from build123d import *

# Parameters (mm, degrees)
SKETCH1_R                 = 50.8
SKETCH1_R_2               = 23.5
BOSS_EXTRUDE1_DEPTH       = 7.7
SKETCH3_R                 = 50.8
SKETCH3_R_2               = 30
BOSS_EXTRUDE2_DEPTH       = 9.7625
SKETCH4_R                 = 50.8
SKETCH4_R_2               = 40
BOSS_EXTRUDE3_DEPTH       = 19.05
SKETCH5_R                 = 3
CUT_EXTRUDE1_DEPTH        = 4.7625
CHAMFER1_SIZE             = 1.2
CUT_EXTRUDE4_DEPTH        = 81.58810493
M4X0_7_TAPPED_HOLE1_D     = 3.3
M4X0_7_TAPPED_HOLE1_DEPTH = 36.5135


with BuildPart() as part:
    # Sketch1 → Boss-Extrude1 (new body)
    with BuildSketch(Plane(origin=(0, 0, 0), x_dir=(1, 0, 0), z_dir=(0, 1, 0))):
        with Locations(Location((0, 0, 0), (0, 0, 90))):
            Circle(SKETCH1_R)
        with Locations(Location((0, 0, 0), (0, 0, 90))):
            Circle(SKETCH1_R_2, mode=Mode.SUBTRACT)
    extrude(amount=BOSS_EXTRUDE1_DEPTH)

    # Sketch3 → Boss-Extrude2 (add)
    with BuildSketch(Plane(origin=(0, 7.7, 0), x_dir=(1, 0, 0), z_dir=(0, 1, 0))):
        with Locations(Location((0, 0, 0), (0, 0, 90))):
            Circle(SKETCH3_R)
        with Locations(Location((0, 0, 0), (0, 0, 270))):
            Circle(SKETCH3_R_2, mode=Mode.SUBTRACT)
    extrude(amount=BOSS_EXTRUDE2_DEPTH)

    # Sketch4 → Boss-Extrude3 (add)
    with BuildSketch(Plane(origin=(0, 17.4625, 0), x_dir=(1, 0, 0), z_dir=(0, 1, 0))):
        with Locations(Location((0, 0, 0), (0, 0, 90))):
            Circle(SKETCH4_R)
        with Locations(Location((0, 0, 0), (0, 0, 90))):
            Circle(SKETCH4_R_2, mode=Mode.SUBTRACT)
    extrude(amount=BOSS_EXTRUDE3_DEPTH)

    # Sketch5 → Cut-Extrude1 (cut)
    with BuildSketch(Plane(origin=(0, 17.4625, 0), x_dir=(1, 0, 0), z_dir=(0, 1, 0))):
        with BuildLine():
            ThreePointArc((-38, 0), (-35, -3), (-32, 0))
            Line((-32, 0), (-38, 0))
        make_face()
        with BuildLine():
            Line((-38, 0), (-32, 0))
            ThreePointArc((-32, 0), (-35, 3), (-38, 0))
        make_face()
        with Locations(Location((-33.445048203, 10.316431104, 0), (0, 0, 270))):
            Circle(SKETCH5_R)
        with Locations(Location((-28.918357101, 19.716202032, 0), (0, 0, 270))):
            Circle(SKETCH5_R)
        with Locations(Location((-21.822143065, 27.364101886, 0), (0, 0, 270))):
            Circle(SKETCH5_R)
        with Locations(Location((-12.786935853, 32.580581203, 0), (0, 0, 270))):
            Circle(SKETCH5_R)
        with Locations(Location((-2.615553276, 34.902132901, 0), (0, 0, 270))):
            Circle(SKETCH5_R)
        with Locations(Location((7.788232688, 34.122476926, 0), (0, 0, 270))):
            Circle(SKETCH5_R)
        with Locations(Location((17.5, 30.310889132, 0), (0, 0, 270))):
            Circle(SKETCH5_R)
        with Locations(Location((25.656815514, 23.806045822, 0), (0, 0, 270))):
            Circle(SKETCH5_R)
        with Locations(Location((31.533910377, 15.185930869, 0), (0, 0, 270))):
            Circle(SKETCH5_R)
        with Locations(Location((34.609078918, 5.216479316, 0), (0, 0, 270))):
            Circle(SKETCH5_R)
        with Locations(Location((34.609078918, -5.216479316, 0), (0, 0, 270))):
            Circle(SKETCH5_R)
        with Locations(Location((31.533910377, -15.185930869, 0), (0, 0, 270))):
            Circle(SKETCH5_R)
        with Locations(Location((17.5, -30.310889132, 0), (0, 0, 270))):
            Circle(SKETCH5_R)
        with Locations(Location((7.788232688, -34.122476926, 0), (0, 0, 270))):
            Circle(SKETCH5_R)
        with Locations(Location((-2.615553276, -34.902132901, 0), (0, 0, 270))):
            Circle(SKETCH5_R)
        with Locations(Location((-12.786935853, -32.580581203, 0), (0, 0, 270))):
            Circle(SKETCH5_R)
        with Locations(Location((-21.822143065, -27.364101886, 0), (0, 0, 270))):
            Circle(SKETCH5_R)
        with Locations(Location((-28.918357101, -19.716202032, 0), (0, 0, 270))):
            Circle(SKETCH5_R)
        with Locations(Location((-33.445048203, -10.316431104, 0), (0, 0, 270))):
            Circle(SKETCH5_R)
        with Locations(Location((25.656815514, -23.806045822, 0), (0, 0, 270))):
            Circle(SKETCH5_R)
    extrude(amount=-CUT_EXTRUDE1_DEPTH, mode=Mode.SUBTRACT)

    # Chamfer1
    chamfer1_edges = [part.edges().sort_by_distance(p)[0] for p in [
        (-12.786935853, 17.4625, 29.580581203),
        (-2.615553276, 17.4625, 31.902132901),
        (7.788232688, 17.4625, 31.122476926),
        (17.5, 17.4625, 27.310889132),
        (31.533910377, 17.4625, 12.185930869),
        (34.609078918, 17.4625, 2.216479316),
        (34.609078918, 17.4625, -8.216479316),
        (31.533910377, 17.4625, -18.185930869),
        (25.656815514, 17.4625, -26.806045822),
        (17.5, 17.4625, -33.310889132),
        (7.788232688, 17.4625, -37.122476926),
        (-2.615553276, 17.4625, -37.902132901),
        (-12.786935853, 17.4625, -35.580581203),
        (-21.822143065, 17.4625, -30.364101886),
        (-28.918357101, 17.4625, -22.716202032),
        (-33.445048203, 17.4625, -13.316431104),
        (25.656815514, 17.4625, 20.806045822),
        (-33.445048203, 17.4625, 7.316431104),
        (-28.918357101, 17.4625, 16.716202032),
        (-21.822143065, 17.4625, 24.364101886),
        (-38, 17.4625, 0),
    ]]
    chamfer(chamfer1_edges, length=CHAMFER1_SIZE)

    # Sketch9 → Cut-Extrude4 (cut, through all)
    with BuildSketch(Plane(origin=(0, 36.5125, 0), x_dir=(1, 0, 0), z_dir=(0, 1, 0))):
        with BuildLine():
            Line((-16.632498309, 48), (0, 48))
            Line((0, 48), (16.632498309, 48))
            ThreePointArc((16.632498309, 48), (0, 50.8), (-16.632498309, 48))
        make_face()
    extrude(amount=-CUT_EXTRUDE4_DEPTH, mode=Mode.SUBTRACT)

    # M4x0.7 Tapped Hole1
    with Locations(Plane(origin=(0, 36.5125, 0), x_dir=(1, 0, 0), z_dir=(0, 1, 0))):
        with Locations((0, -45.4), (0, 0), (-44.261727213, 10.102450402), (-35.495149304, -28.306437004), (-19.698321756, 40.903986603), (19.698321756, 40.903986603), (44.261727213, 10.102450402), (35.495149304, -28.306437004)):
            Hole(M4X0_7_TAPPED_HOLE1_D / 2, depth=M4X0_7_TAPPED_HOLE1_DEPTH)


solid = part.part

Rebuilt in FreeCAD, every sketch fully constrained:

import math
import FreeCAD as App
import Part
import Sketcher
from FreeCAD import Vector


def edges_at(feature, points):
    """Names of the edges that pass closest to the given points."""
    edges = feature.Shape.Edges
    near = lambda p: min(range(len(edges)), key=lambda i: edges[i].distToShape(Part.Vertex(*p))[0])
    return sorted({f"Edge{near(p) + 1}" for p in points})

doc = App.newDocument("Part")
body = doc.addObject("PartDesign::Body", "Body")

# Sketch on XZ plane
sketch1 = doc.addObject("Sketcher::SketchObject", "Sketch")
body.addObject(sketch1)
sketch1.AttachmentSupport = (doc.XZ_Plane, [""])
sketch1.MapMode = "FlatFace"
sketch1.addGeometry(Part.Circle(Vector(0, 0, 0), Vector(0, 0, 1), 51), False)
sketch1.addGeometry(Part.Circle(Vector(0, 0, 0), Vector(0, 0, 1), 24), False)
sketch1.addConstraint(Sketcher.Constraint("Coincident", 0, 3, -1, 1))
sketch1.addConstraint(Sketcher.Constraint("Coincident", 1, 3, -1, 1))
sketch1.addConstraint(Sketcher.Constraint("Diameter", 1, 47.0))
sketch1.addConstraint(Sketcher.Constraint("Diameter", 0, 101.6))
pad1 = doc.addObject("PartDesign::Pad", "Pad")
body.addObject(pad1)
pad1.Profile = sketch1
pad1.Length = 7.7
pad1.Reversed = True

# Sketch on XZ plane
sketch2 = doc.addObject("Sketcher::SketchObject", "Sketch001")
body.addObject(sketch2)
sketch2.AttachmentSupport = (doc.XZ_Plane, [""])
sketch2.MapMode = "FlatFace"
sketch2.AttachmentOffset = App.Placement(Vector(0, 0, -7.7), App.Rotation())
sketch2.addGeometry(Part.Circle(Vector(0, 0, 0), Vector(0, 0, 1), 51), False)
sketch2.addGeometry(Part.Circle(Vector(0, 0, 0), Vector(0, 0, 1), 30), False)
sketch2.addConstraint(Sketcher.Constraint("Coincident", 0, 3, -1, 1))
sketch2.addConstraint(Sketcher.Constraint("Coincident", 1, 3, -1, 1))
sketch2.addConstraint(Sketcher.Constraint("Diameter", 1, 60.0))
sketch2.addConstraint(Sketcher.Constraint("Diameter", 0, 101.6))
pad2 = doc.addObject("PartDesign::Pad", "Pad001")
body.addObject(pad2)
pad2.Profile = sketch2
pad2.Length = 9.7625
pad2.Reversed = True

# Sketch on XZ plane
sketch3 = doc.addObject("Sketcher::SketchObject", "Sketch002")
body.addObject(sketch3)
sketch3.AttachmentSupport = (doc.XZ_Plane, [""])
sketch3.MapMode = "FlatFace"
sketch3.AttachmentOffset = App.Placement(Vector(0, 0, -17.4625), App.Rotation())
sketch3.addGeometry(Part.Circle(Vector(0, 0, 0), Vector(0, 0, 1), 51), False)
sketch3.addGeometry(Part.Circle(Vector(0, 0, 0), Vector(0, 0, 1), 40), False)
sketch3.addConstraint(Sketcher.Constraint("Coincident", 0, 3, -1, 1))
sketch3.addConstraint(Sketcher.Constraint("Coincident", 1, 3, -1, 1))
sketch3.addConstraint(Sketcher.Constraint("Diameter", 1, 80.0))
sketch3.addConstraint(Sketcher.Constraint("Diameter", 0, 101.6))
pad3 = doc.addObject("PartDesign::Pad", "Pad002")
body.addObject(pad3)
pad3.Profile = sketch3
pad3.Length = 19.05
pad3.Reversed = True

# Sketch on XZ plane
sketch4 = doc.addObject("Sketcher::SketchObject", "Sketch003")
body.addObject(sketch4)
sketch4.AttachmentSupport = (doc.XZ_Plane, [""])
sketch4.MapMode = "FlatFace"
sketch4.AttachmentOffset = App.Placement(Vector(0, 0, -17.4625), App.Rotation())
sketch4.addGeometry(Part.Circle(Vector(-35, 0, 0), Vector(0, 0, 1), 3), False)
sketch4.addGeometry(Part.Circle(Vector(-33.4, -10.3, 0), Vector(0, 0, 1), 3), False)
sketch4.addGeometry(Part.Circle(Vector(-28.9, -19.7, 0), Vector(0, 0, 1), 3), False)
sketch4.addGeometry(Part.Circle(Vector(-21.8, -27.4, 0), Vector(0, 0, 1), 3), False)
sketch4.addGeometry(Part.Circle(Vector(-12.8, -32.6, 0), Vector(0, 0, 1), 3), False)
sketch4.addGeometry(Part.Circle(Vector(-2.6, -34.9, 0), Vector(0, 0, 1), 3), False)
sketch4.addGeometry(Part.Circle(Vector(7.8, -34.1, 0), Vector(0, 0, 1), 3), False)
sketch4.addGeometry(Part.Circle(Vector(17.5, -30.3, 0), Vector(0, 0, 1), 3), False)
sketch4.addGeometry(Part.Circle(Vector(25.7, -23.8, 0), Vector(0, 0, 1), 3), False)
sketch4.addGeometry(Part.Circle(Vector(31.5, -15.2, 0), Vector(0, 0, 1), 3), False)
sketch4.addGeometry(Part.Circle(Vector(34.6, -5.2, 0), Vector(0, 0, 1), 3), False)
sketch4.addGeometry(Part.Circle(Vector(34.6, 5.2, 0), Vector(0, 0, 1), 3), False)
sketch4.addGeometry(Part.Circle(Vector(31.5, 15.2, 0), Vector(0, 0, 1), 3), False)
sketch4.addGeometry(Part.Circle(Vector(17.5, 30.3, 0), Vector(0, 0, 1), 3), False)
sketch4.addGeometry(Part.Circle(Vector(7.8, 34.1, 0), Vector(0, 0, 1), 3), False)
sketch4.addGeometry(Part.Circle(Vector(-2.6, 34.9, 0), Vector(0, 0, 1), 3), False)
sketch4.addGeometry(Part.Circle(Vector(-12.8, 32.6, 0), Vector(0, 0, 1), 3), False)
sketch4.addGeometry(Part.Circle(Vector(-21.8, 27.4, 0), Vector(0, 0, 1), 3), False)
sketch4.addGeometry(Part.Circle(Vector(-28.9, 19.7, 0), Vector(0, 0, 1), 3), False)
sketch4.addGeometry(Part.Circle(Vector(-33.4, 10.3, 0), Vector(0, 0, 1), 3), False)
sketch4.addGeometry(Part.Circle(Vector(25.7, 23.8, 0), Vector(0, 0, 1), 3), False)
sketch4.addConstraint(Sketcher.Constraint("Equal", 0, 1))
sketch4.addConstraint(Sketcher.Constraint("Equal", 1, 2))
sketch4.addConstraint(Sketcher.Constraint("Equal", 2, 3))
sketch4.addConstraint(Sketcher.Constraint("Equal", 3, 4))
sketch4.addConstraint(Sketcher.Constraint("Equal", 4, 5))
sketch4.addConstraint(Sketcher.Constraint("Equal", 5, 6))
sketch4.addConstraint(Sketcher.Constraint("Equal", 6, 7))
sketch4.addConstraint(Sketcher.Constraint("Equal", 7, 8))
sketch4.addConstraint(Sketcher.Constraint("Equal", 8, 9))
sketch4.addConstraint(Sketcher.Constraint("Equal", 9, 10))
sketch4.addConstraint(Sketcher.Constraint("Equal", 10, 11))
sketch4.addConstraint(Sketcher.Constraint("Equal", 11, 12))
sketch4.addConstraint(Sketcher.Constraint("Equal", 12, 13))
sketch4.addConstraint(Sketcher.Constraint("Equal", 13, 14))
sketch4.addConstraint(Sketcher.Constraint("Equal", 14, 15))
sketch4.addConstraint(Sketcher.Constraint("Equal", 15, 16))
sketch4.addConstraint(Sketcher.Constraint("Equal", 16, 17))
sketch4.addConstraint(Sketcher.Constraint("Equal", 17, 18))
sketch4.addConstraint(Sketcher.Constraint("Equal", 18, 19))
sketch4.addConstraint(Sketcher.Constraint("Equal", 19, 20))
sketch4.addConstraint(Sketcher.Constraint("Symmetric", 10, 3, 11, 3, -1))
sketch4.addConstraint(Sketcher.Constraint("Symmetric", 9, 3, 12, 3, -1))
sketch4.addConstraint(Sketcher.Constraint("Symmetric", 7, 3, 13, 3, -1))
sketch4.addConstraint(Sketcher.Constraint("Symmetric", 6, 3, 14, 3, -1))
sketch4.addConstraint(Sketcher.Constraint("Symmetric", 5, 3, 15, 3, -1))
sketch4.addConstraint(Sketcher.Constraint("Symmetric", 4, 3, 16, 3, -1))
sketch4.addConstraint(Sketcher.Constraint("Symmetric", 3, 3, 17, 3, -1))
sketch4.addConstraint(Sketcher.Constraint("Symmetric", 2, 3, 18, 3, -1))
sketch4.addConstraint(Sketcher.Constraint("Symmetric", 1, 3, 19, 3, -1))
sketch4.addConstraint(Sketcher.Constraint("Symmetric", 8, 3, 20, 3, -1))
sketch4.addConstraint(Sketcher.Constraint("PointOnObject", 0, 3, -1))
sketch4.addConstraint(Sketcher.Constraint("Diameter", 0, 6.0))
sketch4.addConstraint(Sketcher.Constraint("DistanceX", 0, 3, -1, 1, 35.0))
sketch4.addConstraint(Sketcher.Constraint("DistanceX", -1, 1, 7, 3, 17.5))
sketch4.addConstraint(Sketcher.Constraint("DistanceY", 3, 3, -1, 1, 27.364102))
sketch4.addConstraint(Sketcher.Constraint("DistanceY", 3, 3, 2, 3, 7.6479))
sketch4.addConstraint(Sketcher.Constraint("DistanceY", 5, 3, 1, 3, 24.585702))
sketch4.addConstraint(Sketcher.Constraint("DistanceX", 1, 3, -1, 1, 33.445048))
sketch4.addConstraint(Sketcher.Constraint("DistanceY", 1, 3, -1, 1, 10.316431))
sketch4.addConstraint(Sketcher.Constraint("DistanceY", 4, 3, -1, 1, 32.580581))
sketch4.addConstraint(Sketcher.Constraint("DistanceY", 7, 3, -1, 1, 30.310889))
sketch4.addConstraint(Sketcher.Constraint("DistanceX", -1, 1, 9, 3, 31.53391))
sketch4.addConstraint(Sketcher.Constraint("DistanceY", 9, 3, -1, 1, 15.185931))
sketch4.addConstraint(Sketcher.Constraint("DistanceX", -1, 1, 10, 3, 34.609079))
sketch4.addConstraint(Sketcher.Constraint("DistanceY", 10, 3, -1, 1, 5.216479))
sketch4.addConstraint(Sketcher.Constraint("DistanceX", 1, 3, 2, 3, 4.526691))
sketch4.addConstraint(Sketcher.Constraint("DistanceX", 2, 3, 4, 3, 16.131421))
sketch4.addConstraint(Sketcher.Constraint("DistanceX", 3, 3, 5, 3, 19.20659))
sketch4.addConstraint(Sketcher.Constraint("DistanceX", 4, 3, 6, 3, 20.575169))
sketch4.addConstraint(Sketcher.Constraint("DistanceY", 6, 3, 8, 3, 10.316431))
sketch4.addConstraint(Sketcher.Constraint("DistanceX", 5, 3, 8, 3, 28.272369))
sketch4.addConstraint(Sketcher.Constraint("DistanceX", 4, 3, 8, 3, 38.443751))
sketch4.addConstraint(Sketcher.Constraint("DistanceY", 6, 3, -1, 1, 34.122477))
pocket1 = doc.addObject("PartDesign::Pocket", "Pocket")
body.addObject(pocket1)
pocket1.Profile = sketch4
pocket1.Length = 4.7625
pocket1.Reversed = True
doc.recompute()

chamfer = doc.addObject("PartDesign::Chamfer", "Chamfer")
body.addObject(chamfer)
chamfer.Base = (pocket1, edges_at(pocket1, [
    (-12.787, 17.462, 29.581),
    (-2.616, 17.462, 31.902),
    (7.788, 17.462, 31.122),
    (17.5, 17.462, 27.311),
    (31.534, 17.462, 12.186),
    (34.609, 17.462, 2.216),
    (34.609, 17.462, -8.216),
    (31.534, 17.462, -18.186),
    (25.657, 17.462, -26.806),
    (17.5, 17.462, -33.311),
    (7.788, 17.462, -37.122),
    (-2.616, 17.462, -37.902),
    (-12.787, 17.462, -35.581),
    (-21.822, 17.462, -30.364),
    (-28.918, 17.462, -22.716),
    (-33.445, 17.462, -13.316),
    (25.657, 17.462, 20.806),
    (-33.445, 17.462, 7.316),
    (-28.918, 17.462, 16.716),
    (-21.822, 17.462, 24.364),
    (-38, 17.462, 0),
]))
chamfer.Size = 1.2

# Sketch on XZ plane
sketch5 = doc.addObject("Sketcher::SketchObject", "Sketch004")
body.addObject(sketch5)
sketch5.AttachmentSupport = (doc.XZ_Plane, [""])
sketch5.MapMode = "FlatFace"
sketch5.AttachmentOffset = App.Placement(Vector(0, 0, -36.5125), App.Rotation())
sketch5.addGeometry(Part.LineSegment(Vector(-17, -48, 0), Vector(17, -48, 0)), False)
sketch5.addGeometry(Part.ArcOfCircle(Part.Circle(Vector(0, 0, 0), Vector(0, 0, 1), 51), math.radians(-109), math.radians(-71)), False)
sketch5.addConstraint(Sketcher.Constraint("Coincident", 0, 1, 1, 1))
sketch5.addConstraint(Sketcher.Constraint("Coincident", 1, 2, 0, 2))
sketch5.addConstraint(Sketcher.Constraint("Horizontal", 0))
sketch5.addConstraint(Sketcher.Constraint("Coincident", 1, 3, -1, 1))
sketch5.addConstraint(Sketcher.Constraint("Radius", 1, 50.8))
sketch5.addConstraint(Sketcher.Constraint("DistanceY", 0, 1, -1, 1, 48.0))
pocket2 = doc.addObject("PartDesign::Pocket", "Pocket001")
body.addObject(pocket2)
pocket2.Profile = sketch5
pocket2.Type = "ThroughAll"
pocket2.Reversed = True

# Sketch on XZ plane
sketch6 = doc.addObject("Sketcher::SketchObject", "Sketch005")
body.addObject(sketch6)
sketch6.AttachmentSupport = (doc.XZ_Plane, [""])
sketch6.MapMode = "FlatFace"
sketch6.AttachmentOffset = App.Placement(Vector(0, 0, -36.5125), App.Rotation())
sketch6.addGeometry(Part.Circle(Vector(0, 45.4, 0), Vector(0, 0, 1), 1.6), False)
sketch6.addGeometry(Part.Circle(Vector(0, 0, 0), Vector(0, 0, 1), 1.6), False)
sketch6.addGeometry(Part.Circle(Vector(-44.3, -10.1, 0), Vector(0, 0, 1), 1.6), False)
sketch6.addGeometry(Part.Circle(Vector(-35.5, 28.3, 0), Vector(0, 0, 1), 1.6), False)
sketch6.addGeometry(Part.Circle(Vector(-19.7, -40.9, 0), Vector(0, 0, 1), 1.6), False)
sketch6.addGeometry(Part.Circle(Vector(19.7, -40.9, 0), Vector(0, 0, 1), 1.6), False)
sketch6.addGeometry(Part.Circle(Vector(44.3, -10.1, 0), Vector(0, 0, 1), 1.6), False)
sketch6.addGeometry(Part.Circle(Vector(35.5, 28.3, 0), Vector(0, 0, 1), 1.6), False)
sketch6.addConstraint(Sketcher.Constraint("Coincident", 1, 3, -1, 1))
sketch6.addConstraint(Sketcher.Constraint("Equal", 0, 1))
sketch6.addConstraint(Sketcher.Constraint("Equal", 1, 2))
sketch6.addConstraint(Sketcher.Constraint("Equal", 2, 3))
sketch6.addConstraint(Sketcher.Constraint("Equal", 3, 4))
sketch6.addConstraint(Sketcher.Constraint("Equal", 4, 5))
sketch6.addConstraint(Sketcher.Constraint("Equal", 5, 6))
sketch6.addConstraint(Sketcher.Constraint("Equal", 6, 7))
sketch6.addConstraint(Sketcher.Constraint("Symmetric", 4, 3, 5, 3, -2))
sketch6.addConstraint(Sketcher.Constraint("Symmetric", 2, 3, 6, 3, -2))
sketch6.addConstraint(Sketcher.Constraint("Symmetric", 3, 3, 7, 3, -2))
sketch6.addConstraint(Sketcher.Constraint("PointOnObject", 0, 3, -2))
sketch6.addConstraint(Sketcher.Constraint("Diameter", 0, 3.3))
sketch6.addConstraint(Sketcher.Constraint("DistanceY", -1, 1, 0, 3, 45.4))
sketch6.addConstraint(Sketcher.Constraint("DistanceX", 3, 3, 7, 3, 70.990299))
sketch6.addConstraint(Sketcher.Constraint("DistanceY", 2, 3, -1, 1, 10.10245))
sketch6.addConstraint(Sketcher.Constraint("DistanceX", 4, 3, -1, 1, 19.698322))
sketch6.addConstraint(Sketcher.Constraint("DistanceX", 2, 3, 5, 3, 63.960049))
sketch6.addConstraint(Sketcher.Constraint("DistanceY", -1, 1, 3, 3, 28.306437))
sketch6.addConstraint(Sketcher.Constraint("DistanceY", 4, 3, -1, 1, 40.903987))
doc.recompute()
hole = doc.addObject("PartDesign::Hole", "Hole")
body.addObject(hole)
hole.Profile = sketch6
hole.ThreadType = "None"
hole.Diameter = 3.3
hole.DepthType = "Dimension"
hole.Depth = 36.5135
hole.DrillPoint = "Flat"
hole.Reversed = True

doc.recompute()
